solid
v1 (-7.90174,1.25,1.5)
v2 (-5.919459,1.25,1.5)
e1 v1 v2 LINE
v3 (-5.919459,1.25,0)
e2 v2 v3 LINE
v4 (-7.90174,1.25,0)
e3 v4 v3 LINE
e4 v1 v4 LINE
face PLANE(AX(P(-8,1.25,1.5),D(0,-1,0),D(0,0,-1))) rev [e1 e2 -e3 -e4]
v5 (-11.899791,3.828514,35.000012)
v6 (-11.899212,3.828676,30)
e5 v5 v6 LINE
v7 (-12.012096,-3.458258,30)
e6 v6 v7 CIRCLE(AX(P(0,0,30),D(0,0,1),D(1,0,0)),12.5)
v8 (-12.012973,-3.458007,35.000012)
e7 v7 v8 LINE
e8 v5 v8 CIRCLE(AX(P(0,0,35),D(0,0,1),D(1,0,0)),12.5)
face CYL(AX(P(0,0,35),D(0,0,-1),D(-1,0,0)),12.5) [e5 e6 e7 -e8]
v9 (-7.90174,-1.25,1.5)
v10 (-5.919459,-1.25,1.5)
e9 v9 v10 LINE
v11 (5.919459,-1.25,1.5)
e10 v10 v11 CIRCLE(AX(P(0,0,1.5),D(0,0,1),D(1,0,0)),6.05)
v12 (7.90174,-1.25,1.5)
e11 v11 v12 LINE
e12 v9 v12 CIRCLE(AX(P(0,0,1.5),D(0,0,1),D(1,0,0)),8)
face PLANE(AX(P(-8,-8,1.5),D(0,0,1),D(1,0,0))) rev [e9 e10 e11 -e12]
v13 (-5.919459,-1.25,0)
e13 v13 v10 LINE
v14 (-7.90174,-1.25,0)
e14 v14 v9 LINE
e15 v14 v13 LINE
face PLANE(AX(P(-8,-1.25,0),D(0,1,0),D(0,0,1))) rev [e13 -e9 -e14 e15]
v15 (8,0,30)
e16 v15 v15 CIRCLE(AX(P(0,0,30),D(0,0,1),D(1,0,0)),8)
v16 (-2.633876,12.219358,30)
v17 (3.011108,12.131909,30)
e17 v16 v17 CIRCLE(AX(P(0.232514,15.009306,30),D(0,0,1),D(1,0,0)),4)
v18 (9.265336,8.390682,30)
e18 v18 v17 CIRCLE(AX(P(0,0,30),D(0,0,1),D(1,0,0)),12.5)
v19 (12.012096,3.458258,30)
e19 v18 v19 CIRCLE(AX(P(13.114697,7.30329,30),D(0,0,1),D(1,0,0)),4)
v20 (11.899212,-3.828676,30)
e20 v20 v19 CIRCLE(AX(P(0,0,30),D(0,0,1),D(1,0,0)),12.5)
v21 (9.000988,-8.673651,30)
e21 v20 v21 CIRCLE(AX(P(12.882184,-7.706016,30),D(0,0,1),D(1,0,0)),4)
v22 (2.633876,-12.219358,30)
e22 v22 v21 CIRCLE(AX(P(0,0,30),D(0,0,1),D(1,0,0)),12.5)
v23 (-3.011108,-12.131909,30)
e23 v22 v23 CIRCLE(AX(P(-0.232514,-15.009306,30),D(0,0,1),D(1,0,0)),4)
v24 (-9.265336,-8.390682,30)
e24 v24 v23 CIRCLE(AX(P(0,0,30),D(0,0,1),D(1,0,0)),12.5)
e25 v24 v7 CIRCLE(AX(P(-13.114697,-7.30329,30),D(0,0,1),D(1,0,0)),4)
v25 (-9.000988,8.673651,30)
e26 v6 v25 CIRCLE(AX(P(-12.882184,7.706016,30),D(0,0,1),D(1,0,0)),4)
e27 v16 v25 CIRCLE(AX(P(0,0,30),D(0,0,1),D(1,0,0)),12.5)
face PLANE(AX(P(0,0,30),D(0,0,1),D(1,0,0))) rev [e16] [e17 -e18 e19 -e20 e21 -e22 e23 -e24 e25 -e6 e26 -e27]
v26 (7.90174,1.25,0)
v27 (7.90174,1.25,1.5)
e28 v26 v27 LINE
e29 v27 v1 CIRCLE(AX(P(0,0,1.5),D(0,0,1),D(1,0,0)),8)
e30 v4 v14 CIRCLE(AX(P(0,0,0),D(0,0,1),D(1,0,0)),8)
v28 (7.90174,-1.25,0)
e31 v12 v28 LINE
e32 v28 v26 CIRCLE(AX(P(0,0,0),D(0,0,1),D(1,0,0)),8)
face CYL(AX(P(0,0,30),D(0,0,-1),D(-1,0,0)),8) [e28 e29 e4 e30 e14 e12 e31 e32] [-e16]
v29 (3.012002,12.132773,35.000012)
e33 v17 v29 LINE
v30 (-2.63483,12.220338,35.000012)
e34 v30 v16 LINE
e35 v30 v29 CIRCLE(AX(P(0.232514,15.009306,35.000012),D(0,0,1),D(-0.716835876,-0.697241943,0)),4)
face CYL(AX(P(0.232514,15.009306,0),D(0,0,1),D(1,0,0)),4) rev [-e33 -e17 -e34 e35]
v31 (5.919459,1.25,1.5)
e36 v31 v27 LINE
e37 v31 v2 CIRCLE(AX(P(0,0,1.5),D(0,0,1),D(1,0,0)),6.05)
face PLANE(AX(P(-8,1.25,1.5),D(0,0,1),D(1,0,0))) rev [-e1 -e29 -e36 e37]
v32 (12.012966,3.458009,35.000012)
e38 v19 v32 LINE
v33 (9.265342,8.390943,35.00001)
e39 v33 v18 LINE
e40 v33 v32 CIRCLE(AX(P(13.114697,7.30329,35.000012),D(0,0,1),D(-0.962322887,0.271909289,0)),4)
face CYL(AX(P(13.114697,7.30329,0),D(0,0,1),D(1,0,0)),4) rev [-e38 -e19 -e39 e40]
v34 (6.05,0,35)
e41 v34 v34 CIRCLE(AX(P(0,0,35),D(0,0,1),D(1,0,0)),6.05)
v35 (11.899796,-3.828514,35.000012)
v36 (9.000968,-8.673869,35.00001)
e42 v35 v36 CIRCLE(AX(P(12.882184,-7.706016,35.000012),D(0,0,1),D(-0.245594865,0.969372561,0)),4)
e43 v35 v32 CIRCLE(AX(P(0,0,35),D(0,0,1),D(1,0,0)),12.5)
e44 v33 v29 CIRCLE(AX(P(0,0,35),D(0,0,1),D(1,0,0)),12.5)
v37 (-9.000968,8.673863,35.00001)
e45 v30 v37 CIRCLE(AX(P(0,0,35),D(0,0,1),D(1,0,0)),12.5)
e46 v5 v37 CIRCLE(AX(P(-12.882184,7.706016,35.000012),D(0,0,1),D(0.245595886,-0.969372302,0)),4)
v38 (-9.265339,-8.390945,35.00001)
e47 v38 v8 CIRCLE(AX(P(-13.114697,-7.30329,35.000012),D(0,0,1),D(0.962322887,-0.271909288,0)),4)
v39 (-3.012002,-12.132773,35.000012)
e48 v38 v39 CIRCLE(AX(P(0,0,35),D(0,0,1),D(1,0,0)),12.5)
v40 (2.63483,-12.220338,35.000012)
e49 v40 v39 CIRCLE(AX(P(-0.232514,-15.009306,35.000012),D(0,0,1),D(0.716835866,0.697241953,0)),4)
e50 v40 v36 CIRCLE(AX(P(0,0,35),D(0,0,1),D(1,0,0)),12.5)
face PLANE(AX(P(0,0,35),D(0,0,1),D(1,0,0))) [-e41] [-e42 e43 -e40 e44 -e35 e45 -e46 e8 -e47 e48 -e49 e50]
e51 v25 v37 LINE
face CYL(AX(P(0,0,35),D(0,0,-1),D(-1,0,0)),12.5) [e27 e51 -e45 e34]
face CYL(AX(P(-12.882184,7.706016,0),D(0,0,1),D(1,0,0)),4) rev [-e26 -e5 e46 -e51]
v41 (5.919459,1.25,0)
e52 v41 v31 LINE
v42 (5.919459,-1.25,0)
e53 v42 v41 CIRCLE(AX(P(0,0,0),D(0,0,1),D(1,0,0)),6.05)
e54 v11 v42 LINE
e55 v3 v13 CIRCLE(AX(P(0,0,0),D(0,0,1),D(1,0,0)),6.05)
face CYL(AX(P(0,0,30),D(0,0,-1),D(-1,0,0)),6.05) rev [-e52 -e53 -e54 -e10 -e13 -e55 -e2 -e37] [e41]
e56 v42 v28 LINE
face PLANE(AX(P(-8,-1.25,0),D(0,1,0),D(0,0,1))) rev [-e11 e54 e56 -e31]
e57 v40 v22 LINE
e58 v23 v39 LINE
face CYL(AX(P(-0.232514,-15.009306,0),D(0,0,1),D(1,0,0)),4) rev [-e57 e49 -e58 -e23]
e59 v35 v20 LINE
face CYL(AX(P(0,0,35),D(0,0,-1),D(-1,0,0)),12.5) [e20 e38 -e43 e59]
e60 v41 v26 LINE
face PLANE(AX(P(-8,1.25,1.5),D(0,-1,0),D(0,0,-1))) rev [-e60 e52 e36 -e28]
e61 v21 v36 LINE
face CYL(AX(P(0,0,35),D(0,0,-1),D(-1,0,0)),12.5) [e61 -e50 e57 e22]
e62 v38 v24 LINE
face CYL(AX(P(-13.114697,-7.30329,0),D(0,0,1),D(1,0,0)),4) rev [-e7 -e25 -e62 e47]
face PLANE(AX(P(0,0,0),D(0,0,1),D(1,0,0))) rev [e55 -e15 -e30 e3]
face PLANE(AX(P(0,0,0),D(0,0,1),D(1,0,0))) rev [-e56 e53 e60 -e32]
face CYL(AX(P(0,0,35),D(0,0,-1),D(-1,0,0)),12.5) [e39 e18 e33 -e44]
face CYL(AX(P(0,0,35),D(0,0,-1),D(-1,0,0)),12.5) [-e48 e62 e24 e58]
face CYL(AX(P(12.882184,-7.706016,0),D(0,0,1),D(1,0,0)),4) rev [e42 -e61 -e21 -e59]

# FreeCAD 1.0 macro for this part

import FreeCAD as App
import Part
import Sketcher

doc = App.newDocument("Part")
body = doc.addObject("PartDesign::Body", "Body")

# Sketch on XY plane
sketch1 = body.newObject("Sketcher::SketchObject", "Sketch")
sketch1.AttachmentSupport = (doc.getObject("XY_Plane"), [""])
sketch1.MapMode = "FlatFace"
sketch1.addGeometry([
    Part.Circle(App.Vector(0, 0, 0), App.Vector(0, 0, 1), 8),
    Part.Circle(App.Vector(0, 0, 0), App.Vector(0, 0, 1), 6.05),
], False)
sketch1.addConstraint([
    Sketcher.Constraint("Coincident", 0, 3, -1, 1),
    Sketcher.Constraint("Coincident", 1, 3, -1, 1),
    Sketcher.Constraint("Diameter", 0, 16.0),
    Sketcher.Constraint("Diameter", 1, 12.1),
])
pad1 = body.newObject("PartDesign::Pad", "Pad")
pad1.Profile = sketch1
pad1.Length = 30

# Sketch on YZ plane
sketch2 = body.newObject("Sketcher::SketchObject", "Sketch001")
sketch2.AttachmentSupport = (doc.getObject("YZ_Plane"), [""])
sketch2.MapMode = "FlatFace"
sketch2.addGeometry([
    Part.LineSegment(App.Vector(-8, 1.5, 0), App.Vector(-8, 0, 0)),  # 0
    Part.LineSegment(App.Vector(-8, 0, 0), App.Vector(-1.25, 0, 0)),  # 1
    Part.LineSegment(App.Vector(-1.25, 0, 0), App.Vector(-1.25, 1.5, 0)),  # 2
    Part.LineSegment(App.Vector(-1.25, 1.5, 0), App.Vector(-8, 1.5, 0)),  # 3
    Part.LineSegment(App.Vector(1.25, 1.5, 0), App.Vector(1.25, 0, 0)),  # 4
    Part.LineSegment(App.Vector(1.25, 0, 0), App.Vector(8, 0, 0)),  # 5
    Part.LineSegment(App.Vector(8, 0, 0), App.Vector(8, 1.5, 0)),  # 6
    Part.LineSegment(App.Vector(8, 1.5, 0), App.Vector(1.25, 1.5, 0)),  # 7
], False)
sketch2.addConstraint([
    Sketcher.Constraint("Coincident", 0, 2, 1, 1),
    Sketcher.Constraint("Coincident", 1, 2, 2, 1),
    Sketcher.Constraint("Coincident", 2, 2, 3, 1),
    Sketcher.Constraint("Coincident", 3, 2, 0, 1),
    Sketcher.Constraint("Coincident", 4, 2, 5, 1),
    Sketcher.Constraint("Coincident", 5, 2, 6, 1),
    Sketcher.Constraint("Coincident", 6, 2, 7, 1),
    Sketcher.Constraint("Coincident", 7, 2, 4, 1),
    Sketcher.Constraint("Vertical", 0),
    Sketcher.Constraint("Horizontal", 1),
    Sketcher.Constraint("Vertical", 2),
    Sketcher.Constraint("Horizontal", 3),
    Sketcher.Constraint("Vertical", 4),
    Sketcher.Constraint("Horizontal", 5),
    Sketcher.Constraint("Vertical", 6),
    Sketcher.Constraint("Horizontal", 7),
    Sketcher.Constraint("Symmetric", 1, 2, 4, 2, -1, 1),
    Sketcher.Constraint("Symmetric", 0, 2, 5, 2, -2),
    Sketcher.Constraint("Horizontal", 3, 2, 6, 2),
    Sketcher.Constraint("DistanceY", 0, 2, 0, 1, 1.5),
    Sketcher.Constraint("DistanceX", 0, 2, -1, 1, 8.0),
    Sketcher.Constraint("DistanceX", 1, 1, 1, 2, 6.75),
])
pocket1 = body.newObject("PartDesign::Pocket", "Pocket")
pocket1.Profile = sketch2
pocket1.Type = "ThroughAll"
pocket1.Midplane = True

# Sketch on XY plane
sketch3 = body.newObject("Sketcher::SketchObject", "Sketch002")
sketch3.AttachmentSupport = (doc.getObject("XY_Plane"), [""])
sketch3.MapMode = "FlatFace"
sketch3.AttachmentOffset = App.Placement(App.Vector(0, 0, 30), App.Rotation())
sketch3.addGeometry([
    Part.Circle(App.Vector(0, 0, 0), App.Vector(0, 0, 1), 12.5),
    Part.Circle(App.Vector(0, 0, 0), App.Vector(0, 0, 1), 6.05),
], False)
sketch3.addConstraint([
    Sketcher.Constraint("Coincident", 0, 3, -1, 1),
    Sketcher.Constraint("Coincident", 1, 3, -1, 1),
    Sketcher.Constraint("Diameter", 0, 25.0),
    Sketcher.Constraint("Diameter", 1, 12.1),
])
pad2 = body.newObject("PartDesign::Pad", "Pad001")
pad2.Profile = sketch3
pad2.Length = 5

# Sketch on XY plane
sketch4 = body.newObject("Sketcher::SketchObject", "Sketch003")
sketch4.AttachmentSupport = (doc.getObject("XY_Plane"), [""])
sketch4.MapMode = "FlatFace"
sketch4.AttachmentOffset = App.Placement(App.Vector(0, 0, 35), App.Rotation())
sketch4.addGeometry([
    Part.Circle(App.Vector(-12.882184, 7.706016, 0), App.Vector(0, 0, 1), 4),  # 0
    Part.Circle(App.Vector(0.232514, 15.009306, 0), App.Vector(0, 0, 1), 4),  # 1
    Part.Circle(App.Vector(13.114697, 7.30329, 0), App.Vector(0, 0, 1), 4),  # 2
    Part.Circle(App.Vector(12.882184, -7.706016, 0), App.Vector(0, 0, 1), 4),  # 3
    Part.Circle(App.Vector(-0.232514, -15.009306, 0), App.Vector(0, 0, 1), 4),  # 4
    Part.Circle(App.Vector(-13.114697, -7.30329, 0), App.Vector(0, 0, 1), 4),  # 5
], False)
sketch4.addConstraint([
    Sketcher.Constraint("Equal", 0, 1),
    Sketcher.Constraint("Equal", 1, 2),
    Sketcher.Constraint("Equal", 2, 3),
    Sketcher.Constraint("Equal", 3, 4),
    Sketcher.Constraint("Equal", 4, 5),
    Sketcher.Constraint("Symmetric", 0, 3, 3, 3, -1, 1),
    Sketcher.Constraint("Symmetric", 1, 3, 4, 3, -1, 1),
    Sketcher.Constraint("Symmetric", 2, 3, 5, 3, -1, 1),
    Sketcher.Constraint("Diameter", 0, 8.0),
    Sketcher.Constraint("DistanceY", -1, 1, 2, 3, 7.30329),
    Sketcher.Constraint("DistanceY", 0, 3, 1, 3, 7.30329),
    Sketcher.Constraint("DistanceX", 0, 3, 2, 3, 25.996881),
    Sketcher.Constraint("DistanceX", 1, 3, 3, 3, 12.64967),
    Sketcher.Constraint("DistanceY", 3, 3, 1, 3, 22.715322),
    Sketcher.Constraint("DistanceX", 0, 3, -1, 1, 12.882184),
])
pocket2 = body.newObject("PartDesign::Pocket", "Pocket001")
pocket2.Profile = sketch4
pocket2.Type = "ThroughAll"
pocket2.Midplane = True

doc.recompute()
